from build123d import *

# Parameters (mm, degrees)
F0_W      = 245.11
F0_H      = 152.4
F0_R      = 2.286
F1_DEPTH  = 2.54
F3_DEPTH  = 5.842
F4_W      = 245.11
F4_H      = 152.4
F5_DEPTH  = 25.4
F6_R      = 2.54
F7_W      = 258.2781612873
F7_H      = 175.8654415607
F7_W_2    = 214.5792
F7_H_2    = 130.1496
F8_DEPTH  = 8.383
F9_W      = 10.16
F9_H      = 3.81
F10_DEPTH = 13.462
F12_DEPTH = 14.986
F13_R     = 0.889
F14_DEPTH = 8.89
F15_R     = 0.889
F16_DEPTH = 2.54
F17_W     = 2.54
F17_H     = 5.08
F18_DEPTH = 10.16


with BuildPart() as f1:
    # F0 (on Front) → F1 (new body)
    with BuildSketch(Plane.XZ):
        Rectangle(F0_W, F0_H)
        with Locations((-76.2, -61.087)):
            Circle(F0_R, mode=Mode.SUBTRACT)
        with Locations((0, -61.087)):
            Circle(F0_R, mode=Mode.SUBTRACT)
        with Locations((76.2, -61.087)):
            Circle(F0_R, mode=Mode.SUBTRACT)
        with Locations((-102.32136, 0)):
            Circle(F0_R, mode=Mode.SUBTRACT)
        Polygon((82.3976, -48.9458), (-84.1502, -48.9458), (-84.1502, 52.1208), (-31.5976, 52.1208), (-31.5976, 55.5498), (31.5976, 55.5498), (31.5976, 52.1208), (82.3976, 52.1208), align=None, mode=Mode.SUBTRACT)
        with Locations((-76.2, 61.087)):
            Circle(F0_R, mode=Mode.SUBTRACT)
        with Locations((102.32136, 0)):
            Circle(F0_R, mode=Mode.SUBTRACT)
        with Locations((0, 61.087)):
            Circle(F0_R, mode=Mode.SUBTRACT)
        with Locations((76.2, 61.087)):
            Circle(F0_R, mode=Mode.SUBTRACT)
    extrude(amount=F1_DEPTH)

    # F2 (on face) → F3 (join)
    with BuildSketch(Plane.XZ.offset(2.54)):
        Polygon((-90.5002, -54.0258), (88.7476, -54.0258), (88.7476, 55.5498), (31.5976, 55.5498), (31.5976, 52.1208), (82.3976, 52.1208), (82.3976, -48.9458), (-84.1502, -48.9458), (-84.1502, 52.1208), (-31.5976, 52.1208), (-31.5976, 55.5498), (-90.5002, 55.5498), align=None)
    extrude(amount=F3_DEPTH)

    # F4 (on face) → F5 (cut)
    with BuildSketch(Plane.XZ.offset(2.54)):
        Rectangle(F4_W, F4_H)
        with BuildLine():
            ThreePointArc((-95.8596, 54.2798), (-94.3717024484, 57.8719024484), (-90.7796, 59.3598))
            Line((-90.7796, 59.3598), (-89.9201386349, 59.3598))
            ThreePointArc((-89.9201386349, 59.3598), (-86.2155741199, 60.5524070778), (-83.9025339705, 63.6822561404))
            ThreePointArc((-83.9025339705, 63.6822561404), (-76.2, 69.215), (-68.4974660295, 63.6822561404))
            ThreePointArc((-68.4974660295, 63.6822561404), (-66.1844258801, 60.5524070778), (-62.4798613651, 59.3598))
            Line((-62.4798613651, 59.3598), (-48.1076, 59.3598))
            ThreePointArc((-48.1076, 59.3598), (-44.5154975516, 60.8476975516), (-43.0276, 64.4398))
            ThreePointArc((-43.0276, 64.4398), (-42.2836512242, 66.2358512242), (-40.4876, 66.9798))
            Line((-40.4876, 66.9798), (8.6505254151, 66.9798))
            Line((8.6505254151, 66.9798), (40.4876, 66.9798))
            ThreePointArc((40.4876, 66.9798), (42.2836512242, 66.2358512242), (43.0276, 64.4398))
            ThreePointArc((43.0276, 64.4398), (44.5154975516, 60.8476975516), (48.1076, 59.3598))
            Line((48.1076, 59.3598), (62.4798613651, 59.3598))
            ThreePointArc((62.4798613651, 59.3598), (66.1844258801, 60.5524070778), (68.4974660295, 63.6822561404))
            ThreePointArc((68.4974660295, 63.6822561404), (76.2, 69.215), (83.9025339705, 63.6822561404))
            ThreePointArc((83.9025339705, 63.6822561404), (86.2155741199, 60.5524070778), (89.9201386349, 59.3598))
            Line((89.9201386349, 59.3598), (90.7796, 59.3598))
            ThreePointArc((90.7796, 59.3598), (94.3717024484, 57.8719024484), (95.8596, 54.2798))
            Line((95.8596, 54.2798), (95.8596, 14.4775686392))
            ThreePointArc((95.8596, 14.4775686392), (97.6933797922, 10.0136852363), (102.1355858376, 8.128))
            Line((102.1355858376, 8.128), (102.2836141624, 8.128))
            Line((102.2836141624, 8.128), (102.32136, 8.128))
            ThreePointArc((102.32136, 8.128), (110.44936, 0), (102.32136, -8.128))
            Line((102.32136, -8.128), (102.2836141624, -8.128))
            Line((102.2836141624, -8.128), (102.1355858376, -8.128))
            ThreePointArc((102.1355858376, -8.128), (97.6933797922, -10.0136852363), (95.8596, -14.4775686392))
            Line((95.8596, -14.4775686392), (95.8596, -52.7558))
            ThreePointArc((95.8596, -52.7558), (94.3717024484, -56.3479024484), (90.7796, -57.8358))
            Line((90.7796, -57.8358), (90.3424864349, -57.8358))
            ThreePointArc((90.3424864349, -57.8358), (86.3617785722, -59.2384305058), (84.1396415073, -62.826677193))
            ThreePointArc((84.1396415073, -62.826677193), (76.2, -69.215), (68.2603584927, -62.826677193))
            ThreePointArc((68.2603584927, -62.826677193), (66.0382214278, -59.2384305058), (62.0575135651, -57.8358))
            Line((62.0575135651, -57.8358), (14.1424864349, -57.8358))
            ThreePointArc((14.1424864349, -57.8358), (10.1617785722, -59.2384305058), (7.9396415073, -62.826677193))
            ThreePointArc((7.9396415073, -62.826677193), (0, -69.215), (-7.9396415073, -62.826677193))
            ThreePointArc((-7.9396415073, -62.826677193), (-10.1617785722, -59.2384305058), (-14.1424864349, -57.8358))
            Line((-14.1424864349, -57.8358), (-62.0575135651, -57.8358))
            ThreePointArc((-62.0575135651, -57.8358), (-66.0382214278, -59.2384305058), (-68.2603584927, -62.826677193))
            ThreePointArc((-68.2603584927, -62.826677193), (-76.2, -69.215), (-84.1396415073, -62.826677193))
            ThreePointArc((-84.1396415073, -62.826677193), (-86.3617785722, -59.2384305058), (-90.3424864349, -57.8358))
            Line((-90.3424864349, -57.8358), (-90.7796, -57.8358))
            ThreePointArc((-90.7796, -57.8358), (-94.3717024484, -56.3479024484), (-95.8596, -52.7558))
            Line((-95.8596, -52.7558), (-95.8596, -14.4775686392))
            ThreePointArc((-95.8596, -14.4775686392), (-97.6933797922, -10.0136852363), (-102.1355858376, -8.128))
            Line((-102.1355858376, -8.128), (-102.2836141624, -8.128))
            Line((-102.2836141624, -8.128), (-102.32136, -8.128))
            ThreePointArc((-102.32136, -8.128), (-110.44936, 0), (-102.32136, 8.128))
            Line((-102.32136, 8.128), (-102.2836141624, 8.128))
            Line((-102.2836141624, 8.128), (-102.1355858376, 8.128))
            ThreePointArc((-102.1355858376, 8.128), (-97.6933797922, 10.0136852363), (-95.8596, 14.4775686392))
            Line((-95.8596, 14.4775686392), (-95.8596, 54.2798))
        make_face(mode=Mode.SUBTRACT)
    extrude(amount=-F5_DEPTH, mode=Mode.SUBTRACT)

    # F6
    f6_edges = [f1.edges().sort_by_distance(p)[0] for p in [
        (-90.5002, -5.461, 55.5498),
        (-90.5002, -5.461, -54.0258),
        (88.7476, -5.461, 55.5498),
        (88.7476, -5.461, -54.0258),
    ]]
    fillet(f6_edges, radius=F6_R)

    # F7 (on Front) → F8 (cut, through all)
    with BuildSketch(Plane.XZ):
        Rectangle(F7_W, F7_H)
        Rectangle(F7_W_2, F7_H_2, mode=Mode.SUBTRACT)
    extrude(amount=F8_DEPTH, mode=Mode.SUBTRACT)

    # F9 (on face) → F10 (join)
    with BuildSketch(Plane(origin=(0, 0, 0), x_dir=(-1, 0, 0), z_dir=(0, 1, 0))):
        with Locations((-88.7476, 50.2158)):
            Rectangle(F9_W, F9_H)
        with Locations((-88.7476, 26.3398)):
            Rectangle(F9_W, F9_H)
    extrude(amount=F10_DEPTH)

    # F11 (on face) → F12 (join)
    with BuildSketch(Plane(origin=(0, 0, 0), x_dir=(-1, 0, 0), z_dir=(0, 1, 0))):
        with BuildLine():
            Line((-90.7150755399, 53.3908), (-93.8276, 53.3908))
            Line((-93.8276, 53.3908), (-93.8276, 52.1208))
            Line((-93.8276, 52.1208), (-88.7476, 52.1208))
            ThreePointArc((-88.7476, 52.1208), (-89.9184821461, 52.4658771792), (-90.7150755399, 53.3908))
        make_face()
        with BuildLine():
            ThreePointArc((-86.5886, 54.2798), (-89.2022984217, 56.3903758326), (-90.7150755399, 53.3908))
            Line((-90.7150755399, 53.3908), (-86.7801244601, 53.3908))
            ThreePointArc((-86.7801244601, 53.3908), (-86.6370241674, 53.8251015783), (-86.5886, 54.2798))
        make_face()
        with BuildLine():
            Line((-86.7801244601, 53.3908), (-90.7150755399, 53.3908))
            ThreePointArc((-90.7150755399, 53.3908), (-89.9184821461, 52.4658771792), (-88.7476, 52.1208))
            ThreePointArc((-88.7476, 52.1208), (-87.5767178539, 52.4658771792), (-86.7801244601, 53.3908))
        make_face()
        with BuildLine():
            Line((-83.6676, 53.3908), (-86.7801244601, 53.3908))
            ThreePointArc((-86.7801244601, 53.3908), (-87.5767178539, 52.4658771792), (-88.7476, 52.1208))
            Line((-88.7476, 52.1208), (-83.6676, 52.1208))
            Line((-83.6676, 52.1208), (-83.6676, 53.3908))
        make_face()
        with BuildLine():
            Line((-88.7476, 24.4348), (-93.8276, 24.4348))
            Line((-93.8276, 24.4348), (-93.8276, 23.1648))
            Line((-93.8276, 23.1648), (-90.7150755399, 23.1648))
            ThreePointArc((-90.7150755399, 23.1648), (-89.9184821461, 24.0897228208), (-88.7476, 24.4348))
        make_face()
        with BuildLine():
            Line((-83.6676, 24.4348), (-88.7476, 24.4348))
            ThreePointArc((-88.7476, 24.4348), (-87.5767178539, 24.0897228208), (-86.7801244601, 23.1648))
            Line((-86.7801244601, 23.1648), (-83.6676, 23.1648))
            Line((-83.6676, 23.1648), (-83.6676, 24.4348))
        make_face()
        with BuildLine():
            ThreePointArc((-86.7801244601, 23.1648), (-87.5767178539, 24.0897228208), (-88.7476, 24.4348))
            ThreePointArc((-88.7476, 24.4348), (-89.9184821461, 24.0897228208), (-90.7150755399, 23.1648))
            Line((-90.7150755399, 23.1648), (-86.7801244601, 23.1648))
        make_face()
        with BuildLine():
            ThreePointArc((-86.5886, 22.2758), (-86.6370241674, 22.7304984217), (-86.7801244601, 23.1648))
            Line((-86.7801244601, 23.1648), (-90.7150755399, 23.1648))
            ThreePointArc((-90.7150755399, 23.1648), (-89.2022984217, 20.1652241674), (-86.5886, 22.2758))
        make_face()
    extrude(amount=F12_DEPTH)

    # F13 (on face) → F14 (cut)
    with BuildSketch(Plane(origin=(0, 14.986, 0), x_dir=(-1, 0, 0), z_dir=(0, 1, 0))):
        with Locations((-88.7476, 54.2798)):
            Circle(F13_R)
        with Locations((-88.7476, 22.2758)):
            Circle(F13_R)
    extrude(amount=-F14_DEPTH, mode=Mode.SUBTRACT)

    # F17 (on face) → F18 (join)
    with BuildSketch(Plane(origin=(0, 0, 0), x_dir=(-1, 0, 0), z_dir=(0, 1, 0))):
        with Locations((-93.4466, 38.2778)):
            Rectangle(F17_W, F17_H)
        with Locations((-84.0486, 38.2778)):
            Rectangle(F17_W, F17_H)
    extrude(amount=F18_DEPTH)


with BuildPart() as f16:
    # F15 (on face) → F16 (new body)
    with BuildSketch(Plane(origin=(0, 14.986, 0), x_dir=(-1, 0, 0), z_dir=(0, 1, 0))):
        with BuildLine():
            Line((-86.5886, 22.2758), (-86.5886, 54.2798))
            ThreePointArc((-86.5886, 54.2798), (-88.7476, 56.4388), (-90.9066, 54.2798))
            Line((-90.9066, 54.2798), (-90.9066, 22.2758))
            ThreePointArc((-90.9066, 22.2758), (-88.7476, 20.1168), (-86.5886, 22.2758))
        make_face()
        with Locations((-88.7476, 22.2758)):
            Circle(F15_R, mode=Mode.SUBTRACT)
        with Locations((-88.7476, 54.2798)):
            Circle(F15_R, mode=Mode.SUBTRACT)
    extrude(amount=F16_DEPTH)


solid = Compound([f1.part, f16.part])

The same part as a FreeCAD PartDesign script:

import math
import FreeCAD as App
import Part
import Sketcher

V = App.Vector
Q = App.Units.Quantity


def edges_at(feature, points):
    """Names of the edges that pass closest to the given points."""
    edges = feature.Shape.Edges
    near = lambda p: min(range(len(edges)), key=lambda i: edges[i].distToShape(Part.Vertex(*p))[0])
    return sorted({f"Edge{near(p) + 1}" for p in points})


def add_polygon(sketch, points):
    """Adds a closed chain of lines whose ends are joined by coincident constraints."""
    first, n = sketch.GeometryCount, len(points)
    for a, b in zip(points, points[1:] + points[:1]):
        sketch.addGeometry(Part.LineSegment(App.Vector(*a, 0), App.Vector(*b, 0)), False)
    for i in range(n):
        sketch.addConstraint(Sketcher.Constraint("Coincident", first + i, 2, first + (i + 1) % n, 1))

doc = App.newDocument("Part")
body = doc.addObject("PartDesign::Body", "Body")

# Sketch on XZ plane
sketch1 = doc.addObject("Sketcher::SketchObject", "Sketch")
body.addObject(sketch1)
sketch1.AttachmentSupport = (doc.XZ_Plane, [""])
sketch1.MapMode = "FlatFace"
add_polygon(sketch1, [(-122.6, 76.2), (-122.6, -76.2), (122.6, -76.2), (122.6, 76.2)])  # lines 0-3
sketch1.addGeometry(Part.Circle(V(-76.2, -61.1, 0), V(0, 0, 1), 2.3), False)  # 4
sketch1.addGeometry(Part.Circle(V(0, -61.1, 0), V(0, 0, 1), 2.3), False)  # 5
sketch1.addGeometry(Part.Circle(V(76.2, -61.1, 0), V(0, 0, 1), 2.3), False)  # 6
sketch1.addGeometry(Part.Circle(V(-102.3, 0, 0), V(0, 0, 1), 2.3), False)  # 7
add_polygon(sketch1, [(82.4, 52.1), (82.4, -48.9), (-84.2, -48.9), (-84.2, 52.1), (-31.6, 52.1), (-31.6, 55.5), (31.6, 55.5), (31.6, 52.1)])  # lines 8-15
sketch1.addGeometry(Part.Circle(V(-76.2, 61.1, 0), V(0, 0, 1), 2.3), False)  # 16
sketch1.addGeometry(Part.Circle(V(102.3, 0, 0), V(0, 0, 1), 2.3), False)  # 17
sketch1.addGeometry(Part.Circle(V(0, 61.1, 0), V(0, 0, 1), 2.3), False)  # 18
sketch1.addGeometry(Part.Circle(V(76.2, 61.1, 0), V(0, 0, 1), 2.3), False)  # 19
sketch1.addConstraint(Sketcher.Constraint("Vertical", 0))
sketch1.addConstraint(Sketcher.Constraint("Horizontal", 1))
sketch1.addConstraint(Sketcher.Constraint("Vertical", 2))
sketch1.addConstraint(Sketcher.Constraint("Horizontal", 3))
sketch1.addConstraint(Sketcher.Constraint("Vertical", 8))
sketch1.addConstraint(Sketcher.Constraint("Horizontal", 9))
sketch1.addConstraint(Sketcher.Constraint("Vertical", 10))
sketch1.addConstraint(Sketcher.Constraint("Horizontal", 11))
sketch1.addConstraint(Sketcher.Constraint("Vertical", 12))
sketch1.addConstraint(Sketcher.Constraint("Horizontal", 13))
sketch1.addConstraint(Sketcher.Constraint("Vertical", 14))
sketch1.addConstraint(Sketcher.Constraint("Horizontal", 15))
sketch1.addConstraint(Sketcher.Constraint("Equal", 4, 5))
sketch1.addConstraint(Sketcher.Constraint("Equal", 5, 6))
sketch1.addConstraint(Sketcher.Constraint("Equal", 6, 7))
sketch1.addConstraint(Sketcher.Constraint("Equal", 7, 16))
sketch1.addConstraint(Sketcher.Constraint("Equal", 16, 17))
sketch1.addConstraint(Sketcher.Constraint("Equal", 17, 18))
sketch1.addConstraint(Sketcher.Constraint("Equal", 18, 19))
sketch1.addConstraint(Sketcher.Constraint("Symmetric", 6, 3, 16, 3, -1, 1))
sketch1.addConstraint(Sketcher.Constraint("Symmetric", 7, 3, 17, 3, -1, 1))
sketch1.addConstraint(Sketcher.Constraint("Symmetric", 5, 3, 18, 3, -1, 1))
sketch1.addConstraint(Sketcher.Constraint("Symmetric", 4, 3, 19, 3, -1, 1))
sketch1.addConstraint(Sketcher.Constraint("Symmetric", 0, 2, 2, 2, -1, 1))
sketch1.addConstraint(Sketcher.Constraint("Symmetric", 4, 3, 6, 3, -2))
sketch1.addConstraint(Sketcher.Constraint("Symmetric", 11, 2, 14, 2, -2))
sketch1.addConstraint(Sketcher.Constraint("PointOnObject", 5, 3, -2))
sketch1.addConstraint(Sketcher.Constraint("PointOnObject", 7, 3, -1))
sketch1.addConstraint(Sketcher.Constraint("Horizontal", 4, 3, 5, 3))
sketch1.addConstraint(Sketcher.Constraint("Diameter", 4, Q("0.18 in")))
sketch1.addConstraint(Sketcher.Constraint("DistanceX", 15, 1, 15, 2, Q("2 in")))
sketch1.addConstraint(Sketcher.Constraint("DistanceY", 0, 2, 0, 1, Q("6 in")))
sketch1.addConstraint(Sketcher.Constraint("DistanceX", 4, 3, -1, 1, Q("3 in")))
sketch1.addConstraint(Sketcher.Constraint("DistanceX", 1, 1, 1, 2, Q("9.65 in")))
sketch1.addConstraint(Sketcher.Constraint("DistanceX", 9, 2, 9, 1, Q("6.557 in")))
sketch1.addConstraint(Sketcher.Constraint("DistanceX", 11, 1, 11, 2, Q("2.069 in")))
sketch1.addConstraint(Sketcher.Constraint("DistanceY", 8, 2, 8, 1, Q("3.979 in")))
sketch1.addConstraint(Sketcher.Constraint("DistanceY", 12, 1, 12, 2, Q("0.135 in")))
sketch1.addConstraint(Sketcher.Constraint("DistanceY", 4, 3, 16, 3, Q("4.81 in")))
sketch1.addConstraint(Sketcher.Constraint("DistanceY", 8, 2, -1, 1, Q("1.927 in")))
sketch1.addConstraint(Sketcher.Constraint("DistanceX", 7, 3, -1, 1, Q("4.0284 in")))
pad1 = doc.addObject("PartDesign::Pad", "Pad")
body.addObject(pad1)
pad1.Profile = sketch1
pad1.Length = Q("0.1 in")

# Sketch on XZ plane
sketch2 = doc.addObject("Sketcher::SketchObject", "Sketch001")
body.addObject(sketch2)
sketch2.AttachmentSupport = (doc.XZ_Plane, [""])
sketch2.MapMode = "FlatFace"
sketch2.AttachmentOffset = App.Placement(V(0, 0, 0.1 * 25.4), App.Rotation())
add_polygon(sketch2, [(-90.5, -54), (88.7, -54), (88.7, 55.5), (31.6, 55.5), (31.6, 52.1), (82.4, 52.1), (82.4, -48.9), (-84.2, -48.9), (-84.2, 52.1), (-31.6, 52.1), (-31.6, 55.5), (-90.5, 55.5)])  # lines 0-11
sketch2.addConstraint(Sketcher.Constraint("Horizontal", 0))
sketch2.addConstraint(Sketcher.Constraint("Vertical", 1))
sketch2.addConstraint(Sketcher.Constraint("Horizontal", 2))
sketch2.addConstraint(Sketcher.Constraint("Vertical", 3))
sketch2.addConstraint(Sketcher.Constraint("Horizontal", 4))
sketch2.addConstraint(Sketcher.Constraint("Vertical", 5))
sketch2.addConstraint(Sketcher.Constraint("Horizontal", 6))
sketch2.addConstraint(Sketcher.Constraint("Vertical", 7))
sketch2.addConstraint(Sketcher.Constraint("Horizontal", 8))
sketch2.addConstraint(Sketcher.Constraint("Vertical", 9))
sketch2.addConstraint(Sketcher.Constraint("Horizontal", 10))
sketch2.addConstraint(Sketcher.Constraint("Vertical", 11))
sketch2.addConstraint(Sketcher.Constraint("Symmetric", 3, 2, 8, 2, -2))
sketch2.addConstraint(Sketcher.Constraint("Horizontal", 2, 2, 9, 2))
sketch2.addConstraint(Sketcher.Constraint("DistanceX", 4, 1, 4, 2, Q("2 in")))
sketch2.addConstraint(Sketcher.Constraint("DistanceX", 2, 2, 2, 1, Q("2.25 in")))
sketch2.addConstraint(Sketcher.Constraint("DistanceY", 0, 2, 5, 2, Q("0.2 in")))
sketch2.addConstraint(Sketcher.Constraint("DistanceX", 0, 1, 0, 2, Q("7.057 in")))
sketch2.addConstraint(Sketcher.Constraint("DistanceX", 6, 2, 6, 1, Q("6.557 in")))
sketch2.addConstraint(Sketcher.Constraint("DistanceX", 8, 1, 8, 2, Q("2.069 in")))
sketch2.addConstraint(Sketcher.Constraint("DistanceY", 1, 1, 1, 2, Q("4.314 in")))
sketch2.addConstraint(Sketcher.Constraint("DistanceY", 3, 2, 3, 1, Q("0.135 in")))
sketch2.addConstraint(Sketcher.Constraint("DistanceY", 0, 2, -1, 1, Q("2.127 in")))
pad2 = doc.addObject("PartDesign::Pad", "Pad001")
body.addObject(pad2)
pad2.Profile = sketch2
pad2.Length = Q("0.23 in")

# Sketch on XZ plane
sketch3 = doc.addObject("Sketcher::SketchObject", "Sketch002")
body.addObject(sketch3)
sketch3.AttachmentSupport = (doc.XZ_Plane, [""])
sketch3.MapMode = "FlatFace"
sketch3.AttachmentOffset = App.Placement(V(0, 0, 0.1 * 25.4), App.Rotation())
add_polygon(sketch3, [(-122.555, 76.2), (-122.555, -76.2), (122.555, -76.2), (122.555, 76.2)])  # lines 0-3
sketch3.addGeometry(Part.LineSegment(V(-95.8596, 14.477569, 0), V(-95.8596, 54.2798, 0)), False)  # 4
sketch3.addGeometry(Part.ArcOfCircle(Part.Circle(V(-90.7796, 54.2798, 0), V(0, 0, 1), 5.08), math.radians(90), math.radians(180)), False)  # 5
sketch3.addGeometry(Part.LineSegment(V(-90.7796, 59.3598, 0), V(-89.920139, 59.3598, 0)), False)  # 6
sketch3.addGeometry(Part.ArcOfCircle(Part.Circle(V(-89.920139, 65.7098, 0), V(0, 0, 1), 6.35), math.radians(-90), math.radians(-18.620491)), False)  # 7
sketch3.addGeometry(Part.ArcOfCircle(Part.Circle(V(-76.2, 61.087, 0), V(0, 0, 1), 8.128), math.radians(18.620491), math.radians(161.379509)), False)  # 8
sketch3.addGeometry(Part.ArcOfCircle(Part.Circle(V(-62.479861, 65.7098, 0), V(0, 0, 1), 6.35), math.radians(-161.379509), math.radians(-90)), False)  # 9
sketch3.addGeometry(Part.LineSegment(V(-62.479861, 59.3598, 0), V(-48.1076, 59.3598, 0)), False)  # 10
sketch3.addGeometry(Part.ArcOfCircle(Part.Circle(V(-48.1076, 64.4398, 0), V(0, 0, 1), 5.08), math.radians(-90), math.radians(0)), False)  # 11
sketch3.addGeometry(Part.ArcOfCircle(Part.Circle(V(-40.4876, 64.4398, 0), V(0, 0, 1), 2.54), math.radians(90), math.radians(180)), False)  # 12
sketch3.addGeometry(Part.LineSegment(V(-40.4876, 66.9798, 0), V(40.4876, 66.9798, 0)), False)  # 13
sketch3.addGeometry(Part.ArcOfCircle(Part.Circle(V(40.4876, 64.4398, 0), V(0, 0, 1), 2.54), math.radians(0), math.radians(90)), False)  # 14
sketch3.addGeometry(Part.ArcOfCircle(Part.Circle(V(48.1076, 64.4398, 0), V(0, 0, 1), 5.08), math.radians(180), math.radians(270)), False)  # 15
sketch3.addGeometry(Part.LineSegment(V(48.1076, 59.3598, 0), V(62.479861, 59.3598, 0)), False)  # 16
sketch3.addGeometry(Part.ArcOfCircle(Part.Circle(V(62.479861, 65.7098, 0), V(0, 0, 1), 6.35), math.radians(-90), math.radians(-18.620491)), False)  # 17
sketch3.addGeometry(Part.ArcOfCircle(Part.Circle(V(76.2, 61.087, 0), V(0, 0, 1), 8.128), math.radians(18.620491), math.radians(161.379509)), False)  # 18
sketch3.addGeometry(Part.ArcOfCircle(Part.Circle(V(89.920139, 65.7098, 0), V(0, 0, 1), 6.35), math.radians(-161.379509), math.radians(-90)), False)  # 19
sketch3.addGeometry(Part.LineSegment(V(89.920139, 59.3598, 0), V(90.7796, 59.3598, 0)), False)  # 20
sketch3.addGeometry(Part.ArcOfCircle(Part.Circle(V(90.7796, 54.2798, 0), V(0, 0, 1), 5.08), math.radians(0), math.radians(90)), False)  # 21
sketch3.addGeometry(Part.LineSegment(V(95.8596, 54.2798, 0), V(95.8596, 14.477569, 0)), False)  # 22
sketch3.addGeometry(Part.ArcOfCircle(Part.Circle(V(102.2096, 14.477569, 0), V(0, 0, 1), 6.35), math.radians(180), math.radians(269.332158)), False)  # 23
sketch3.addGeometry(Part.LineSegment(V(102.135586, 8.128, 0), V(102.32136, 8.128, 0)), False)  # 24
sketch3.addGeometry(Part.ArcOfCircle(Part.Circle(V(102.32136, 0, 0), V(0, 0, 1), 8.128), math.radians(-90), math.radians(90)), False)  # 25
sketch3.addGeometry(Part.LineSegment(V(102.32136, -8.128, 0), V(102.135586, -8.128, 0)), False)  # 26
sketch3.addGeometry(Part.ArcOfCircle(Part.Circle(V(102.2096, -14.477569, 0), V(0, 0, 1), 6.35), math.radians(90.667842), math.radians(180)), False)  # 27
sketch3.addGeometry(Part.LineSegment(V(95.8596, -14.477569, 0), V(95.8596, -52.7558, 0)), False)  # 28
sketch3.addGeometry(Part.ArcOfCircle(Part.Circle(V(90.7796, -52.7558, 0), V(0, 0, 1), 5.08), math.radians(-90), math.radians(0)), False)  # 29
sketch3.addGeometry(Part.LineSegment(V(90.7796, -57.8358, 0), V(90.342486, -57.8358, 0)), False)  # 30
sketch3.addGeometry(Part.ArcOfCircle(Part.Circle(V(90.342486, -64.1858, 0), V(0, 0, 1), 6.35), math.radians(90), math.radians(167.641076)), False)  # 31
sketch3.addGeometry(Part.ArcOfCircle(Part.Circle(V(76.2, -61.087, 0), V(0, 0, 1), 8.128), math.radians(-167.641076), math.radians(-12.358924)), False)  # 32
sketch3.addGeometry(Part.ArcOfCircle(Part.Circle(V(62.057514, -64.1858, 0), V(0, 0, 1), 6.35), math.radians(12.358924), math.radians(90)), False)  # 33
sketch3.addGeometry(Part.LineSegment(V(62.057514, -57.8358, 0), V(14.142486, -57.8358, 0)), False)  # 34
sketch3.addGeometry(Part.ArcOfCircle(Part.Circle(V(14.142486, -64.1858, 0), V(0, 0, 1), 6.35), math.radians(90), math.radians(167.641076)), False)  # 35
sketch3.addGeometry(Part.ArcOfCircle(Part.Circle(V(0, -61.087, 0), V(0, 0, 1), 8.128), math.radians(-167.641076), math.radians(-12.358924)), False)  # 36
sketch3.addGeometry(Part.ArcOfCircle(Part.Circle(V(-14.142486, -64.1858, 0), V(0, 0, 1), 6.35), math.radians(12.358924), math.radians(90)), False)  # 37
sketch3.addGeometry(Part.LineSegment(V(-14.142486, -57.8358, 0), V(-62.057514, -57.8358, 0)), False)  # 38
sketch3.addGeometry(Part.ArcOfCircle(Part.Circle(V(-62.057514, -64.1858, 0), V(0, 0, 1), 6.35), math.radians(90), math.radians(167.641076)), False)  # 39
sketch3.addGeometry(Part.ArcOfCircle(Part.Circle(V(-76.2, -61.087, 0), V(0, 0, 1), 8.128), math.radians(-167.641076), math.radians(-12.358924)), False)  # 40
sketch3.addGeometry(Part.ArcOfCircle(Part.Circle(V(-90.342486, -64.1858, 0), V(0, 0, 1), 6.35), math.radians(12.358924), math.radians(90)), False)  # 41
sketch3.addGeometry(Part.LineSegment(V(-90.342486, -57.8358, 0), V(-90.7796, -57.8358, 0)), False)  # 42
sketch3.addGeometry(Part.ArcOfCircle(Part.Circle(V(-90.7796, -52.7558, 0), V(0, 0, 1), 5.08), math.radians(180), math.radians(270)), False)  # 43
sketch3.addGeometry(Part.LineSegment(V(-95.8596, -52.7558, 0), V(-95.8596, -14.477569, 0)), False)  # 44
sketch3.addGeometry(Part.ArcOfCircle(Part.Circle(V(-102.2096, -14.477569, 0), V(0, 0, 1), 6.35), math.radians(0), math.radians(89.332158)), False)  # 45
sketch3.addGeometry(Part.LineSegment(V(-102.135586, -8.128, 0), V(-102.32136, -8.128, 0)), False)  # 46
sketch3.addGeometry(Part.ArcOfCircle(Part.Circle(V(-102.32136, 0, 0), V(0, 0, 1), 8.128), math.radians(90), math.radians(270)), False)  # 47
sketch3.addGeometry(Part.LineSegment(V(-102.32136, 8.128, 0), V(-102.135586, 8.128, 0)), False)  # 48
sketch3.addGeometry(Part.ArcOfCircle(Part.Circle(V(-102.2096, 14.477569, 0), V(0, 0, 1), 6.35), math.radians(-89.332158), math.radians(0)), False)  # 49
sketch3.addConstraint(Sketcher.Constraint("Coincident", 4, 2, 5, 2))
sketch3.addConstraint(Sketcher.Constraint("Coincident", 5, 1, 6, 1))
sketch3.addConstraint(Sketcher.Constraint("Coincident", 6, 2, 7, 1))
sketch3.addConstraint(Sketcher.Constraint("Coincident", 7, 2, 8, 2))
sketch3.addConstraint(Sketcher.Constraint("Coincident", 8, 1, 9, 1))
sketch3.addConstraint(Sketcher.Constraint("Coincident", 9, 2, 10, 1))
sketch3.addConstraint(Sketcher.Constraint("Coincident", 10, 2, 11, 1))
sketch3.addConstraint(Sketcher.Constraint("Coincident", 11, 2, 12, 2))
sketch3.addConstraint(Sketcher.Constraint("Coincident", 12, 1, 13, 1))
sketch3.addConstraint(Sketcher.Constraint("Coincident", 13, 2, 14, 2))
sketch3.addConstraint(Sketcher.Constraint("Coincident", 14, 1, 15, 1))
sketch3.addConstraint(Sketcher.Constraint("Coincident", 15, 2, 16, 1))
sketch3.addConstraint(Sketcher.Constraint("Coincident", 16, 2, 17, 1))
sketch3.addConstraint(Sketcher.Constraint("Coincident", 17, 2, 18, 2))
sketch3.addConstraint(Sketcher.Constraint("Coincident", 18, 1, 19, 1))
sketch3.addConstraint(Sketcher.Constraint("Coincident", 19, 2, 20, 1))
sketch3.addConstraint(Sketcher.Constraint("Coincident", 20, 2, 21, 2))
sketch3.addConstraint(Sketcher.Constraint("Coincident", 21, 1, 22, 1))
sketch3.addConstraint(Sketcher.Constraint("Coincident", 22, 2, 23, 1))
sketch3.addConstraint(Sketcher.Constraint("Coincident", 23, 2, 24, 1))
sketch3.addConstraint(Sketcher.Constraint("Coincident", 24, 2, 25, 2))
sketch3.addConstraint(Sketcher.Constraint("Coincident", 25, 1, 26, 1))
sketch3.addConstraint(Sketcher.Constraint("Coincident", 26, 2, 27, 1))
sketch3.addConstraint(Sketcher.Constraint("Coincident", 27, 2, 28, 1))
sketch3.addConstraint(Sketcher.Constraint("Coincident", 28, 2, 29, 2))
sketch3.addConstraint(Sketcher.Constraint("Coincident", 29, 1, 30, 1))
sketch3.addConstraint(Sketcher.Constraint("Coincident", 30, 2, 31, 1))
sketch3.addConstraint(Sketcher.Constraint("Coincident", 31, 2, 32, 2))
sketch3.addConstraint(Sketcher.Constraint("Coincident", 32, 1, 33, 1))
sketch3.addConstraint(Sketcher.Constraint("Coincident", 33, 2, 34, 1))
sketch3.addConstraint(Sketcher.Constraint("Coincident", 34, 2, 35, 1))
sketch3.addConstraint(Sketcher.Constraint("Coincident", 35, 2, 36, 2))
sketch3.addConstraint(Sketcher.Constraint("Coincident", 36, 1, 37, 1))
sketch3.addConstraint(Sketcher.Constraint("Coincident", 37, 2, 38, 1))
sketch3.addConstraint(Sketcher.Constraint("Coincident", 38, 2, 39, 1))
sketch3.addConstraint(Sketcher.Constraint("Coincident", 39, 2, 40, 2))
sketch3.addConstraint(Sketcher.Constraint("Coincident", 40, 1, 41, 1))
sketch3.addConstraint(Sketcher.Constraint("Coincident", 41, 2, 42, 1))
sketch3.addConstraint(Sketcher.Constraint("Coincident", 42, 2, 43, 2))
sketch3.addConstraint(Sketcher.Constraint("Coincident", 43, 1, 44, 1))
sketch3.addConstraint(Sketcher.Constraint("Coincident", 44, 2, 45, 1))
sketch3.addConstraint(Sketcher.Constraint("Coincident", 45, 2, 46, 1))
sketch3.addConstraint(Sketcher.Constraint("Coincident", 46, 2, 47, 2))
sketch3.addConstraint(Sketcher.Constraint("Coincident", 47, 1, 48, 1))
sketch3.addConstraint(Sketcher.Constraint("Coincident", 48, 2, 49, 1))
sketch3.addConstraint(Sketcher.Constraint("Coincident", 49, 2, 4, 1))
sketch3.addConstraint(Sketcher.Constraint("Vertical", 0))
sketch3.addConstraint(Sketcher.Constraint("Horizontal", 1))
sketch3.addConstraint(Sketcher.Constraint("Vertical", 2))
sketch3.addConstraint(Sketcher.Constraint("Horizontal", 3))
sketch3.addConstraint(Sketcher.Constraint("Vertical", 4))
sketch3.addConstraint(Sketcher.Constraint("Horizontal", 6))
sketch3.addConstraint(Sketcher.Constraint("Horizontal", 10))
sketch3.addConstraint(Sketcher.Constraint("Horizontal", 13))
sketch3.addConstraint(Sketcher.Constraint("Horizontal", 16))
sketch3.addConstraint(Sketcher.Constraint("Horizontal", 20))
sketch3.addConstraint(Sketcher.Constraint("Vertical", 22))
sketch3.addConstraint(Sketcher.Constraint("Horizontal", 24))
sketch3.addConstraint(Sketcher.Constraint("Horizontal", 26))
sketch3.addConstraint(Sketcher.Constraint("Vertical", 28))
sketch3.addConstraint(Sketcher.Constraint("Horizontal", 30))
sketch3.addConstraint(Sketcher.Constraint("Horizontal", 34))
sketch3.addConstraint(Sketcher.Constraint("Horizontal", 38))
sketch3.addConstraint(Sketcher.Constraint("Horizontal", 42))
sketch3.addConstraint(Sketcher.Constraint("Vertical", 44))
sketch3.addConstraint(Sketcher.Constraint("Horizontal", 46))
sketch3.addConstraint(Sketcher.Constraint("Horizontal", 48))
sketch3.addConstraint(Sketcher.Constraint("PointOnObject", 25, 3, -1))
sketch3.addConstraint(Sketcher.Constraint("PointOnObject", 36, 3, -2))
sketch3.addConstraint(Sketcher.Constraint("PointOnObject", 47, 3, -1))
sketch3.addConstraint(Sketcher.Constraint("Radius", 5, Q("0.2 in")))
sketch3.addConstraint(Sketcher.Constraint("Radius", 11, Q("0.2 in")))
sketch3.addConstraint(Sketcher.Constraint("Radius", 12, Q("0.1 in")))
sketch3.addConstraint(Sketcher.Constraint("Radius", 14, Q("0.1 in")))
sketch3.addConstraint(Sketcher.Constraint("Radius", 15, Q("0.2 in")))
sketch3.addConstraint(Sketcher.Constraint("Radius", 21, Q("0.2 in")))
sketch3.addConstraint(Sketcher.Constraint("Radius", 29, Q("0.2 in")))
sketch3.addConstraint(Sketcher.Constraint("Radius", 43, Q("0.2 in")))
sketch3.addConstraint(Sketcher.Constraint("DistanceY", 0, 2, 0, 1, Q("6 in")))
sketch3.addConstraint(Sketcher.Constraint("Radius", 7, Q("0.25 in")))
sketch3.addConstraint(Sketcher.Constraint("Radius", 8, Q("0.32 in")))
sketch3.addConstraint(Sketcher.Constraint("Radius", 9, Q("0.25 in")))
sketch3.addConstraint(Sketcher.Constraint("Radius", 17, Q("0.25 in")))
sketch3.addConstraint(Sketcher.Constraint("Radius", 18, Q("0.32 in")))
sketch3.addConstraint(Sketcher.Constraint("Radius", 19, Q("0.25 in")))
sketch3.addConstraint(Sketcher.Constraint("Radius", 23, Q("0.25 in")))
sketch3.addConstraint(Sketcher.Constraint("Radius", 25, Q("0.32 in")))
sketch3.addConstraint(Sketcher.Constraint("Radius", 27, Q("0.25 in")))
sketch3.addConstraint(Sketcher.Constraint("Radius", 31, Q("0.25 in")))
sketch3.addConstraint(Sketcher.Constraint("Radius", 32, Q("0.32 in")))
sketch3.addConstraint(Sketcher.Constraint("Radius", 33, Q("0.25 in")))
sketch3.addConstraint(Sketcher.Constraint("Radius", 35, Q("0.25 in")))
sketch3.addConstraint(Sketcher.Constraint("Radius", 36, Q("0.32 in")))
sketch3.addConstraint(Sketcher.Constraint("Radius", 37, Q("0.25 in")))
sketch3.addConstraint(Sketcher.Constraint("Radius", 39, Q("0.25 in")))
sketch3.addConstraint(Sketcher.Constraint("Radius", 40, Q("0.32 in")))
sketch3.addConstraint(Sketcher.Constraint("Radius", 41, Q("0.25 in")))
sketch3.addConstraint(Sketcher.Constraint("Radius", 45, Q("0.25 in")))
sketch3.addConstraint(Sketcher.Constraint("Radius", 47, Q("0.32 in")))
sketch3.addConstraint(Sketcher.Constraint("Radius", 49, Q("0.25 in")))
sketch3.addConstraint(Sketcher.Constraint("DistanceX", 8, 3, -1, 1, Q("3 in")))
sketch3.addConstraint(Sketcher.Constraint("DistanceX", -1, 1, 18, 3, Q("3 in")))
sketch3.addConstraint(Sketcher.Constraint("DistanceX", -1, 1, 32, 3, Q("3 in")))
sketch3.addConstraint(Sketcher.Constraint("DistanceX", 40, 3, -1, 1, Q("3 in")))
sketch3.addConstraint(Sketcher.Constraint("DistanceY", 0, 2, -1, 1, Q("3 in")))
sketch3.addConstraint(Sketcher.Constraint("DistanceX", 1, 1, 1, 2, Q("9.65 in")))
sketch3.addConstraint(Sketcher.Constraint("DistanceX", 13, 1, 13, 2, Q("3.188 in")))
sketch3.addConstraint(Sketcher.Constraint("DistanceX", 5, 3, -1, 1, Q("3.574 in")))
sketch3.addConstraint(Sketcher.Constraint("DistanceY", -1, 1, 5, 3, Q("2.137 in")))
sketch3.addConstraint(Sketcher.Constraint("DistanceY", -1, 1, 8, 3, Q("2.405 in")))
sketch3.addConstraint(Sketcher.Constraint("DistanceY", -1, 1, 9, 3, Q("2.587 in")))
sketch3.addConstraint(Sketcher.Constraint("DistanceX", 11, 3, -1, 1, Q("1.894 in")))
sketch3.addConstraint(Sketcher.Constraint("DistanceY", -1, 1, 12, 3, Q("2.537 in")))
sketch3.addConstraint(Sketcher.Constraint("DistanceX", -1, 1, 14, 3, Q("1.594 in")))
sketch3.addConstraint(Sketcher.Constraint("DistanceY", -1, 1, 15, 3, Q("2.537 in")))
sketch3.addConstraint(Sketcher.Constraint("DistanceY", -1, 1, 18, 3, Q("2.405 in")))
sketch3.addConstraint(Sketcher.Constraint("DistanceY", -1, 1, 19, 3, Q("2.587 in")))
sketch3.addConstraint(Sketcher.Constraint("DistanceX", -1, 1, 21, 3, Q("3.574 in")))
sketch3.addConstraint(Sketcher.Constraint("DistanceX", -1, 1, 27, 3, Q("4.024 in")))
sketch3.addConstraint(Sketcher.Constraint("DistanceY", 29, 3, -1, 1, Q("2.077 in")))
sketch3.addConstraint(Sketcher.Constraint("DistanceY", 32, 3, -1, 1, Q("2.405 in")))
sketch3.addConstraint(Sketcher.Constraint("DistanceY", 33, 3, -1, 1, Q("2.527 in")))
sketch3.addConstraint(Sketcher.Constraint("DistanceY", 36, 3, -1, 1, Q("2.405 in")))
sketch3.addConstraint(Sketcher.Constraint("DistanceY", 37, 3, -1, 1, Q("2.527 in")))
sketch3.addConstraint(Sketcher.Constraint("DistanceY", 40, 3, -1, 1, Q("2.405 in")))
sketch3.addConstraint(Sketcher.Constraint("DistanceY", 41, 3, -1, 1, Q("2.527 in")))
sketch3.addConstraint(Sketcher.Constraint("DistanceX", 43, 3, -1, 1, Q("3.574 in")))
sketch3.addConstraint(Sketcher.Constraint("DistanceX", 0, 2, -1, 1, Q("4.825 in")))
sketch3.addConstraint(Sketcher.Constraint("DistanceY", -1, 1, 4, 2, Q("2.137 in")))
sketch3.addConstraint(Sketcher.Constraint("DistanceX", 5, 1, -1, 1, Q("3.574 in")))
sketch3.addConstraint(Sketcher.Constraint("DistanceX", 10, 2, -1, 1, Q("1.894 in")))
sketch3.addConstraint(Sketcher.Constraint("DistanceY", -1, 1, 11, 2, Q("2.537 in")))
sketch3.addConstraint(Sketcher.Constraint("DistanceX", 12, 1, -1, 1, Q("1.594 in")))
sketch3.addConstraint(Sketcher.Constraint("DistanceY", -1, 1, 14, 1, Q("2.537 in")))
sketch3.addConstraint(Sketcher.Constraint("DistanceX", -1, 1, 15, 2, Q("1.894 in")))
sketch3.addConstraint(Sketcher.Constraint("DistanceX", -1, 1, 20, 2, Q("3.574 in")))
sketch3.addConstraint(Sketcher.Constraint("DistanceY", -1, 1, 21, 1, Q("2.137 in")))
sketch3.addConstraint(Sketcher.Constraint("DistanceY", 28, 2, -1, 1, Q("2.077 in")))
sketch3.addConstraint(Sketcher.Constraint("DistanceX", -1, 1, 29, 1, Q("3.574 in")))
sketch3.addConstraint(Sketcher.Constraint("DistanceX", 42, 2, -1, 1, Q("3.574 in")))
sketch3.addConstraint(Sketcher.Constraint("DistanceY", 43, 1, -1, 1, Q("2.077 in")))
sketch3.addConstraint(Sketcher.Constraint("DistanceX", -1, 1, 25, 3, Q("4.0284 in")))
sketch3.addConstraint(Sketcher.Constraint("DistanceX", 47, 3, -1, 1, Q("4.0284 in")))
sketch3.addConstraint(Sketcher.Constraint("DistanceX", -1, 1, 24, 2, Q("4.0284 in")))
sketch3.addConstraint(Sketcher.Constraint("DistanceX", -1, 1, 25, 1, Q("4.0284 in")))
sketch3.addConstraint(Sketcher.Constraint("DistanceX", 46, 2, -1, 1, Q("4.0284 in")))
sketch3.addConstraint(Sketcher.Constraint("DistanceX", 47, 1, -1, 1, Q("4.0284 in")))
sketch3.addConstraint(Sketcher.Constraint("DistanceX", 6, 1, 6, 2, Q("0.859461 mm")))
sketch3.addConstraint(Sketcher.Constraint("DistanceX", 10, 1, 10, 2, Q("14.372261 mm")))
sketch3.addConstraint(Sketcher.Constraint("DistanceX", 16, 1, 16, 2, Q("14.372261 mm")))
sketch3.addConstraint(Sketcher.Constraint("DistanceX", 20, 1, 20, 2, Q("0.859461 mm")))
sketch3.addConstraint(Sketcher.Constraint("DistanceY", 4, 1, 4, 2, Q("39.802231 mm")))
sketch3.addConstraint(Sketcher.Constraint("DistanceY", 22, 2, 22, 1, Q("39.802231 mm")))
sketch3.addConstraint(Sketcher.Constraint("DistanceY", 28, 2, 28, 1, Q("38.278231 mm")))
sketch3.addConstraint(Sketcher.Constraint("DistanceY", 44, 1, 44, 2, Q("38.278231 mm")))
sketch3.addConstraint(Sketcher.Constraint("DistanceX", 24, 1, 24, 2, Q("0.185774 mm")))
sketch3.addConstraint(Sketcher.Constraint("DistanceX", 26, 2, 26, 1, Q("0.185774 mm")))
sketch3.addConstraint(Sketcher.Constraint("DistanceX", 30, 2, 30, 1, Q("0.437114 mm")))
sketch3.addConstraint(Sketcher.Constraint("DistanceX", 34, 2, 34, 1, Q("47.915027 mm")))
sketch3.addConstraint(Sketcher.Constraint("DistanceX", 38, 2, 38, 1, Q("47.915027 mm")))
sketch3.addConstraint(Sketcher.Constraint("DistanceX", 42, 2, 42, 1, Q("0.437114 mm")))
sketch3.addConstraint(Sketcher.Constraint("DistanceX", 46, 2, 46, 1, Q("0.185774 mm")))
sketch3.addConstraint(Sketcher.Constraint("DistanceX", 48, 1, 48, 2, Q("0.185774 mm")))
sketch3.addConstraint(Sketcher.Constraint("DistanceX", -1, 1, 31, 2, Q("84.139642 mm")))
sketch3.addConstraint(Sketcher.Constraint("DistanceX", -1, 1, 32, 1, Q("68.260358 mm")))
sketch3.addConstraint(Sketcher.Constraint("DistanceX", -1, 1, 35, 2, Q("7.939642 mm")))
sketch3.addConstraint(Sketcher.Constraint("DistanceX", 36, 1, -1, 1, Q("7.939642 mm")))
sketch3.addConstraint(Sketcher.Constraint("DistanceX", 39, 2, -1, 1, Q("68.260358 mm")))
sketch3.addConstraint(Sketcher.Constraint("DistanceX", 40, 1, -1, 1, Q("84.139642 mm")))
sketch3.addConstraint(Sketcher.Constraint("DistanceX", 7, 2, -1, 1, Q("83.902534 mm")))
sketch3.addConstraint(Sketcher.Constraint("DistanceX", 8, 1, -1, 1, Q("68.497466 mm")))
sketch3.addConstraint(Sketcher.Constraint("DistanceX", -1, 1, 17, 2, Q("68.497466 mm")))
sketch3.addConstraint(Sketcher.Constraint("DistanceX", -1, 1, 18, 1, Q("83.902534 mm")))
sketch3.addConstraint(Sketcher.Constraint("DistanceX", -1, 1, 33, 2, Q("62.057514 mm")))
sketch3.addConstraint(Sketcher.Constraint("DistanceX", 37, 2, -1, 1, Q("14.142486 mm")))
pocket1 = doc.addObject("PartDesign::Pocket", "Pocket")
body.addObject(pocket1)
pocket1.Profile = sketch3
pocket1.Length = Q("1 in")
doc.recompute()

fillet = doc.addObject("PartDesign::Fillet", "Fillet")
body.addObject(fillet)
fillet.Base = (pocket1, edges_at(pocket1, [
    (-90.5, -5.461, 55.55),
    (-90.5, -5.461, -54.026),
    (88.748, -5.461, 55.55),
    (88.748, -5.461, -54.026),
]))
fillet.Radius = Q("0.1 in")

# Sketch on XZ plane
sketch4 = doc.addObject("Sketcher::SketchObject", "Sketch003")
body.addObject(sketch4)
sketch4.AttachmentSupport = (doc.XZ_Plane, [""])
sketch4.MapMode = "FlatFace"
add_polygon(sketch4, [(-129, 88), (-129, -88), (129, -88), (129, 88)])  # lines 0-3
add_polygon(sketch4, [(107, -65), (-107, -65), (-107, 65), (107, 65)])  # lines 4-7
sketch4.addConstraint(Sketcher.Constraint("Vertical", 0))
sketch4.addConstraint(Sketcher.Constraint("Horizontal", 1))
sketch4.addConstraint(Sketcher.Constraint("Vertical", 2))
sketch4.addConstraint(Sketcher.Constraint("Horizontal", 3))
sketch4.addConstraint(Sketcher.Constraint("Horizontal", 4))
sketch4.addConstraint(Sketcher.Constraint("Vertical", 5))
sketch4.addConstraint(Sketcher.Constraint("Horizontal", 6))
sketch4.addConstraint(Sketcher.Constraint("Vertical", 7))
sketch4.addConstraint(Sketcher.Constraint("Symmetric", 0, 2, 2, 2, -1, 1))
sketch4.addConstraint(Sketcher.Constraint("Symmetric", 4, 2, 6, 2, -1, 1))
sketch4.addConstraint(Sketcher.Constraint("DistanceX", 4, 2, 4, 1, Q("8.448 in")))
sketch4.addConstraint(Sketcher.Constraint("DistanceY", 5, 1, 5, 2, Q("5.124 in")))
sketch4.addConstraint(Sketcher.Constraint("DistanceX", 1, 1, 1, 2, Q("258.278161 mm")))
sketch4.addConstraint(Sketcher.Constraint("DistanceY", 0, 2, 0, 1, Q("175.865442 mm")))
pocket2 = doc.addObject("PartDesign::Pocket", "Pocket001")
body.addObject(pocket2)
pocket2.Profile = sketch4
pocket2.Type = "ThroughAll"
pocket2.Reversed = True

# Sketch on XZ plane
sketch5 = doc.addObject("Sketcher::SketchObject", "Sketch004")
body.addObject(sketch5)
sketch5.AttachmentSupport = (doc.XZ_Plane, [""])
sketch5.MapMode = "FlatFace"
add_polygon(sketch5, [(93.8, 52.1), (93.8, 48.3), (83.7, 48.3), (83.7, 52.1)])  # lines 0-3
add_polygon(sketch5, [(93.8, 28.2), (93.8, 24.4), (83.7, 24.4), (83.7, 28.2)])  # lines 4-7
sketch5.addConstraint(Sketcher.Constraint("Vertical", 0))
sketch5.addConstraint(Sketcher.Constraint("Horizontal", 1))
sketch5.addConstraint(Sketcher.Constraint("Vertical", 2))
sketch5.addConstraint(Sketcher.Constraint("Horizontal", 3))
sketch5.addConstraint(Sketcher.Constraint("Vertical", 4))
sketch5.addConstraint(Sketcher.Constraint("Horizontal", 5))
sketch5.addConstraint(Sketcher.Constraint("Vertical", 6))
sketch5.addConstraint(Sketcher.Constraint("Horizontal", 7))
sketch5.addConstraint(Sketcher.Constraint("Vertical", 3, 2, 4, 2))
sketch5.addConstraint(Sketcher.Constraint("Vertical", 2, 2, 5, 2))
sketch5.addConstraint(Sketcher.Constraint("Equal", 2, 4))
sketch5.addConstraint(Sketcher.Constraint("DistanceX", 1, 2, 1, 1, Q("0.4 in")))
sketch5.addConstraint(Sketcher.Constraint("DistanceY", 0, 2, 0, 1, Q("0.15 in")))
sketch5.addConstraint(Sketcher.Constraint("DistanceY", 4, 2, 0, 2, Q("0.94 in")))
sketch5.addConstraint(Sketcher.Constraint("DistanceX", -1, 1, 0, 2, Q("3.694 in")))
sketch5.addConstraint(Sketcher.Constraint("DistanceY", -1, 1, 0, 2, Q("1.902 in")))
pad3 = doc.addObject("PartDesign::Pad", "Pad002")
body.addObject(pad3)
pad3.Profile = sketch5
pad3.Length = Q("0.53 in")
pad3.Reversed = True

# Sketch on XZ plane
sketch6 = doc.addObject("Sketcher::SketchObject", "Sketch005")
body.addObject(sketch6)
sketch6.AttachmentSupport = (doc.XZ_Plane, [""])
sketch6.MapMode = "FlatFace"
sketch6.addGeometry(Part.LineSegment(V(90.7, 53.4, 0), V(93.8, 53.4, 0)), False)
sketch6.addGeometry(Part.LineSegment(V(93.8, 53.4, 0), V(93.8, 52.1, 0)), False)
sketch6.addGeometry(Part.LineSegment(V(93.8, 52.1, 0), V(83.7, 52.1, 0)), False)
sketch6.addGeometry(Part.LineSegment(V(83.7, 52.1, 0), V(83.7, 53.4, 0)), False)
sketch6.addGeometry(Part.LineSegment(V(83.7, 53.4, 0), V(86.8, 53.4, 0)), False)
sketch6.addGeometry(Part.ArcOfCircle(Part.Circle(V(88.7, 54.3, 0), V(0, 0, 1), 2.2), math.radians(180), math.radians(204)), False)
sketch6.addGeometry(Part.ArcOfCircle(Part.Circle(V(88.7, 54.3, 0), V(0, 0, 1), 2.2), math.radians(-24), math.radians(180)), False)
sketch6.addGeometry(Part.LineSegment(V(93.8, 24.4, 0), V(93.8, 23.2, 0)), False)
sketch6.addGeometry(Part.LineSegment(V(93.8, 23.2, 0), V(90.7, 23.2, 0)), False)
sketch6.addGeometry(Part.ArcOfCircle(Part.Circle(V(88.7, 22.3, 0), V(0, 0, 1), 2.2), math.radians(180), math.radians(384)), False)
sketch6.addGeometry(Part.ArcOfCircle(Part.Circle(V(88.7, 22.3, 0), V(0, 0, 1), 2.2), math.radians(156), math.radians(180)), False)
sketch6.addGeometry(Part.LineSegment(V(86.8, 23.2, 0), V(83.7, 23.2, 0)), False)
sketch6.addGeometry(Part.LineSegment(V(83.7, 23.2, 0), V(83.7, 24.4, 0)), False)
sketch6.addGeometry(Part.LineSegment(V(83.7, 24.4, 0), V(93.8, 24.4, 0)), False)
sketch6.addConstraint(Sketcher.Constraint("Coincident", 0, 2, 1, 1))
sketch6.addConstraint(Sketcher.Constraint("Coincident", 1, 2, 2, 1))
sketch6.addConstraint(Sketcher.Constraint("Coincident", 2, 2, 3, 1))
sketch6.addConstraint(Sketcher.Constraint("Coincident", 3, 2, 4, 1))
sketch6.addConstraint(Sketcher.Constraint("Coincident", 4, 2, 5, 2))
sketch6.addConstraint(Sketcher.Constraint("Tangent", 5, 1, 6, 2))
sketch6.addConstraint(Sketcher.Constraint("Coincident", 6, 1, 0, 1))
sketch6.addConstraint(Sketcher.Constraint("Coincident", 7, 2, 8, 1))
sketch6.addConstraint(Sketcher.Constraint("Coincident", 8, 2, 9, 2))
sketch6.addConstraint(Sketcher.Constraint("Tangent", 9, 1, 10, 2))
sketch6.addConstraint(Sketcher.Constraint("Coincident", 10, 1, 11, 1))
sketch6.addConstraint(Sketcher.Constraint("Coincident", 11, 2, 12, 1))
sketch6.addConstraint(Sketcher.Constraint("Coincident", 12, 2, 13, 1))
sketch6.addConstraint(Sketcher.Constraint("Coincident", 13, 2, 7, 1))
sketch6.addConstraint(Sketcher.Constraint("Horizontal", 0))
sketch6.addConstraint(Sketcher.Constraint("Vertical", 1))
sketch6.addConstraint(Sketcher.Constraint("Horizontal", 2))
sketch6.addConstraint(Sketcher.Constraint("Vertical", 3))
sketch6.addConstraint(Sketcher.Constraint("Horizontal", 4))
sketch6.addConstraint(Sketcher.Constraint("Vertical", 7))
sketch6.addConstraint(Sketcher.Constraint("Horizontal", 8))
sketch6.addConstraint(Sketcher.Constraint("Horizontal", 11))
sketch6.addConstraint(Sketcher.Constraint("Vertical", 12))
sketch6.addConstraint(Sketcher.Constraint("Horizontal", 13))
sketch6.addConstraint(Sketcher.Constraint("Equal", 5, 6))
sketch6.addConstraint(Sketcher.Constraint("Equal", 6, 9))
sketch6.addConstraint(Sketcher.Constraint("Equal", 9, 10))
sketch6.addConstraint(Sketcher.Constraint("Horizontal", 0, 2, 3, 2))
sketch6.addConstraint(Sketcher.Constraint("Horizontal", 6, 3, 5, 1))
sketch6.addConstraint(Sketcher.Constraint("Horizontal", 10, 3, 9, 1))
sketch6.addConstraint(Sketcher.Constraint("Horizontal", 8, 2, 10, 1))
sketch6.addConstraint(Sketcher.Constraint("Vertical", 6, 3, 9, 3))
sketch6.addConstraint(Sketcher.Constraint("Vertical", 1, 2, 7, 2))
sketch6.addConstraint(Sketcher.Constraint("Vertical", 6, 1, 8, 2))
sketch6.addConstraint(Sketcher.Constraint("Vertical", 3, 2, 11, 2))
sketch6.addConstraint(Sketcher.Constraint("Equal", 0, 4))
sketch6.addConstraint(Sketcher.Constraint("Equal", 3, 7))
sketch6.addConstraint(Sketcher.Constraint("DistanceX", 2, 2, 2, 1, Q("0.4 in")))
sketch6.addConstraint(Sketcher.Constraint("Radius", 5, Q("0.085 in")))
sketch6.addConstraint(Sketcher.Constraint("DistanceY", 1, 2, 1, 1, Q("0.05 in")))
sketch6.addConstraint(Sketcher.Constraint("DistanceY", 9, 3, 5, 3, Q("1.26 in")))
sketch6.addConstraint(Sketcher.Constraint("DistanceY", 7, 2, 1, 2, Q("1.14 in")))
sketch6.addConstraint(Sketcher.Constraint("DistanceX", -1, 1, 5, 3, Q("3.494 in")))
sketch6.addConstraint(Sketcher.Constraint("DistanceY", -1, 1, 5, 3, Q("2.137 in")))
pad4 = doc.addObject("PartDesign::Pad", "Pad003")
body.addObject(pad4)
pad4.Profile = sketch6
pad4.Length = Q("0.59 in")
pad4.Reversed = True

# Sketch on XZ plane
sketch7 = doc.addObject("Sketcher::SketchObject", "Sketch006")
body.addObject(sketch7)
sketch7.AttachmentSupport = (doc.XZ_Plane, [""])
sketch7.MapMode = "FlatFace"
sketch7.AttachmentOffset = App.Placement(V(0, 0, -0.59 * 25.4), App.Rotation())
sketch7.addGeometry(Part.Circle(V(88.7, 54.3, 0), V(0, 0, 1), 0.9), False)
sketch7.addGeometry(Part.Circle(V(88.7, 22.3, 0), V(0, 0, 1), 0.9), False)
sketch7.addConstraint(Sketcher.Constraint("Equal", 0, 1))
sketch7.addConstraint(Sketcher.Constraint("Vertical", 0, 3, 1, 3))
sketch7.addConstraint(Sketcher.Constraint("Diameter", 0, Q("0.07 in")))
sketch7.addConstraint(Sketcher.Constraint("DistanceY", 1, 3, 0, 3, Q("1.26 in")))
sketch7.addConstraint(Sketcher.Constraint("DistanceX", -1, 1, 0, 3, Q("3.494 in")))
sketch7.addConstraint(Sketcher.Constraint("DistanceY", -1, 1, 0, 3, Q("2.137 in")))
pocket3 = doc.addObject("PartDesign::Pocket", "Pocket002")
body.addObject(pocket3)
pocket3.Profile = sketch7
pocket3.Length = Q("0.35 in")
pocket3.Reversed = True

# Sketch on XZ plane
sketch8 = doc.addObject("Sketcher::SketchObject", "Sketch007")
body.addObject(sketch8)
sketch8.AttachmentSupport = (doc.XZ_Plane, [""])
sketch8.MapMode = "FlatFace"
add_polygon(sketch8, [(94.7, 40.8), (94.7, 35.7), (92.2, 35.7), (92.2, 40.8)])  # lines 0-3
add_polygon(sketch8, [(85.3, 40.8), (85.3, 35.7), (82.8, 35.7), (82.8, 40.8)])  # lines 4-7
sketch8.addConstraint(Sketcher.Constraint("Vertical", 0))
sketch8.addConstraint(Sketcher.Constraint("Horizontal", 1))
sketch8.addConstraint(Sketcher.Constraint("Vertical", 2))
sketch8.addConstraint(Sketcher.Constraint("Horizontal", 3))
sketch8.addConstraint(Sketcher.Constraint("Vertical", 4))
sketch8.addConstraint(Sketcher.Constraint("Horizontal", 5))
sketch8.addConstraint(Sketcher.Constraint("Vertical", 6))
sketch8.addConstraint(Sketcher.Constraint("Horizontal", 7))
sketch8.addConstraint(Sketcher.Constraint("Horizontal", 1, 2, 4, 2))
sketch8.addConstraint(Sketcher.Constraint("Horizontal", 3, 2, 6, 2))
sketch8.addConstraint(Sketcher.Constraint("Equal", 3, 5))
sketch8.addConstraint(Sketcher.Constraint("DistanceX", 1, 2, 1, 1, Q("0.1 in")))
sketch8.addConstraint(Sketcher.Constraint("DistanceY", 0, 2, 0, 1, Q("0.2 in")))
sketch8.addConstraint(Sketcher.Constraint("DistanceX", 4, 2, 1, 2, Q("0.27 in")))
sketch8.addConstraint(Sketcher.Constraint("DistanceX", -1, 1, 0, 2, Q("3.729 in")))
sketch8.addConstraint(Sketcher.Constraint("DistanceY", -1, 1, 0, 2, Q("1.407 in")))
pad5 = doc.addObject("PartDesign::Pad", "Pad004")
body.addObject(pad5)
pad5.Profile = sketch8
pad5.Length = Q("0.4 in")
pad5.Reversed = True
body2 = doc.addObject("PartDesign::Body", "Body001")

# Sketch on XZ plane
sketch9 = doc.addObject("Sketcher::SketchObject", "Sketch008")
body2.addObject(sketch9)
sketch9.AttachmentSupport = (doc.getObject("XZ_Plane001"), [""])
sketch9.MapMode = "FlatFace"
sketch9.AttachmentOffset = App.Placement(V(0, 0, -0.59 * 25.4), App.Rotation())
sketch9.addGeometry(Part.LineSegment(V(86.6, 22.3, 0), V(86.6, 54.3, 0)), False)
sketch9.addGeometry(Part.ArcOfCircle(Part.Circle(V(88.7, 54.3, 0), V(0, 0, 1), 2.2), math.radians(0), math.radians(180)), False)
sketch9.addGeometry(Part.LineSegment(V(90.9, 54.3, 0), V(90.9, 22.3, 0)), False)
sketch9.addGeometry(Part.ArcOfCircle(Part.Circle(V(88.7, 22.3, 0), V(0, 0, 1), 2.2), math.radians(180), math.radians(360)), False)
sketch9.addGeometry(Part.Circle(V(88.7, 22.3, 0), V(0, 0, 1), 0.9), False)
sketch9.addGeometry(Part.Circle(V(88.7, 54.3, 0), V(0, 0, 1), 0.9), False)
sketch9.addConstraint(Sketcher.Constraint("Tangent", 0, 2, 1, 2))
sketch9.addConstraint(Sketcher.Constraint("Tangent", 1, 1, 2, 1))
sketch9.addConstraint(Sketcher.Constraint("Tangent", 2, 2, 3, 2))
sketch9.addConstraint(Sketcher.Constraint("Tangent", 3, 1, 0, 1))
sketch9.addConstraint(Sketcher.Constraint("Vertical", 0))
sketch9.addConstraint(Sketcher.Constraint("Vertical", 2))
sketch9.addConstraint(Sketcher.Constraint("Coincident", 4, 3, 3, 3))
sketch9.addConstraint(Sketcher.Constraint("Coincident", 5, 3, 1, 3))
sketch9.addConstraint(Sketcher.Constraint("Equal", 4, 5))
sketch9.addConstraint(Sketcher.Constraint("Diameter", 4, Q("0.07 in")))
sketch9.addConstraint(Sketcher.Constraint("Radius", 1, Q("0.085 in")))
sketch9.addConstraint(Sketcher.Constraint("DistanceY", 0, 1, 0, 2, Q("1.26 in")))
sketch9.addConstraint(Sketcher.Constraint("DistanceX", -1, 1, 1, 3, Q("3.494 in")))
sketch9.addConstraint(Sketcher.Constraint("DistanceY", -1, 1, 1, 3, Q("2.137 in")))
pad6 = doc.addObject("PartDesign::Pad", "Pad005")
body2.addObject(pad6)
pad6.Profile = sketch9
pad6.Length = Q("0.1 in")
pad6.Reversed = True

doc.recompute()
